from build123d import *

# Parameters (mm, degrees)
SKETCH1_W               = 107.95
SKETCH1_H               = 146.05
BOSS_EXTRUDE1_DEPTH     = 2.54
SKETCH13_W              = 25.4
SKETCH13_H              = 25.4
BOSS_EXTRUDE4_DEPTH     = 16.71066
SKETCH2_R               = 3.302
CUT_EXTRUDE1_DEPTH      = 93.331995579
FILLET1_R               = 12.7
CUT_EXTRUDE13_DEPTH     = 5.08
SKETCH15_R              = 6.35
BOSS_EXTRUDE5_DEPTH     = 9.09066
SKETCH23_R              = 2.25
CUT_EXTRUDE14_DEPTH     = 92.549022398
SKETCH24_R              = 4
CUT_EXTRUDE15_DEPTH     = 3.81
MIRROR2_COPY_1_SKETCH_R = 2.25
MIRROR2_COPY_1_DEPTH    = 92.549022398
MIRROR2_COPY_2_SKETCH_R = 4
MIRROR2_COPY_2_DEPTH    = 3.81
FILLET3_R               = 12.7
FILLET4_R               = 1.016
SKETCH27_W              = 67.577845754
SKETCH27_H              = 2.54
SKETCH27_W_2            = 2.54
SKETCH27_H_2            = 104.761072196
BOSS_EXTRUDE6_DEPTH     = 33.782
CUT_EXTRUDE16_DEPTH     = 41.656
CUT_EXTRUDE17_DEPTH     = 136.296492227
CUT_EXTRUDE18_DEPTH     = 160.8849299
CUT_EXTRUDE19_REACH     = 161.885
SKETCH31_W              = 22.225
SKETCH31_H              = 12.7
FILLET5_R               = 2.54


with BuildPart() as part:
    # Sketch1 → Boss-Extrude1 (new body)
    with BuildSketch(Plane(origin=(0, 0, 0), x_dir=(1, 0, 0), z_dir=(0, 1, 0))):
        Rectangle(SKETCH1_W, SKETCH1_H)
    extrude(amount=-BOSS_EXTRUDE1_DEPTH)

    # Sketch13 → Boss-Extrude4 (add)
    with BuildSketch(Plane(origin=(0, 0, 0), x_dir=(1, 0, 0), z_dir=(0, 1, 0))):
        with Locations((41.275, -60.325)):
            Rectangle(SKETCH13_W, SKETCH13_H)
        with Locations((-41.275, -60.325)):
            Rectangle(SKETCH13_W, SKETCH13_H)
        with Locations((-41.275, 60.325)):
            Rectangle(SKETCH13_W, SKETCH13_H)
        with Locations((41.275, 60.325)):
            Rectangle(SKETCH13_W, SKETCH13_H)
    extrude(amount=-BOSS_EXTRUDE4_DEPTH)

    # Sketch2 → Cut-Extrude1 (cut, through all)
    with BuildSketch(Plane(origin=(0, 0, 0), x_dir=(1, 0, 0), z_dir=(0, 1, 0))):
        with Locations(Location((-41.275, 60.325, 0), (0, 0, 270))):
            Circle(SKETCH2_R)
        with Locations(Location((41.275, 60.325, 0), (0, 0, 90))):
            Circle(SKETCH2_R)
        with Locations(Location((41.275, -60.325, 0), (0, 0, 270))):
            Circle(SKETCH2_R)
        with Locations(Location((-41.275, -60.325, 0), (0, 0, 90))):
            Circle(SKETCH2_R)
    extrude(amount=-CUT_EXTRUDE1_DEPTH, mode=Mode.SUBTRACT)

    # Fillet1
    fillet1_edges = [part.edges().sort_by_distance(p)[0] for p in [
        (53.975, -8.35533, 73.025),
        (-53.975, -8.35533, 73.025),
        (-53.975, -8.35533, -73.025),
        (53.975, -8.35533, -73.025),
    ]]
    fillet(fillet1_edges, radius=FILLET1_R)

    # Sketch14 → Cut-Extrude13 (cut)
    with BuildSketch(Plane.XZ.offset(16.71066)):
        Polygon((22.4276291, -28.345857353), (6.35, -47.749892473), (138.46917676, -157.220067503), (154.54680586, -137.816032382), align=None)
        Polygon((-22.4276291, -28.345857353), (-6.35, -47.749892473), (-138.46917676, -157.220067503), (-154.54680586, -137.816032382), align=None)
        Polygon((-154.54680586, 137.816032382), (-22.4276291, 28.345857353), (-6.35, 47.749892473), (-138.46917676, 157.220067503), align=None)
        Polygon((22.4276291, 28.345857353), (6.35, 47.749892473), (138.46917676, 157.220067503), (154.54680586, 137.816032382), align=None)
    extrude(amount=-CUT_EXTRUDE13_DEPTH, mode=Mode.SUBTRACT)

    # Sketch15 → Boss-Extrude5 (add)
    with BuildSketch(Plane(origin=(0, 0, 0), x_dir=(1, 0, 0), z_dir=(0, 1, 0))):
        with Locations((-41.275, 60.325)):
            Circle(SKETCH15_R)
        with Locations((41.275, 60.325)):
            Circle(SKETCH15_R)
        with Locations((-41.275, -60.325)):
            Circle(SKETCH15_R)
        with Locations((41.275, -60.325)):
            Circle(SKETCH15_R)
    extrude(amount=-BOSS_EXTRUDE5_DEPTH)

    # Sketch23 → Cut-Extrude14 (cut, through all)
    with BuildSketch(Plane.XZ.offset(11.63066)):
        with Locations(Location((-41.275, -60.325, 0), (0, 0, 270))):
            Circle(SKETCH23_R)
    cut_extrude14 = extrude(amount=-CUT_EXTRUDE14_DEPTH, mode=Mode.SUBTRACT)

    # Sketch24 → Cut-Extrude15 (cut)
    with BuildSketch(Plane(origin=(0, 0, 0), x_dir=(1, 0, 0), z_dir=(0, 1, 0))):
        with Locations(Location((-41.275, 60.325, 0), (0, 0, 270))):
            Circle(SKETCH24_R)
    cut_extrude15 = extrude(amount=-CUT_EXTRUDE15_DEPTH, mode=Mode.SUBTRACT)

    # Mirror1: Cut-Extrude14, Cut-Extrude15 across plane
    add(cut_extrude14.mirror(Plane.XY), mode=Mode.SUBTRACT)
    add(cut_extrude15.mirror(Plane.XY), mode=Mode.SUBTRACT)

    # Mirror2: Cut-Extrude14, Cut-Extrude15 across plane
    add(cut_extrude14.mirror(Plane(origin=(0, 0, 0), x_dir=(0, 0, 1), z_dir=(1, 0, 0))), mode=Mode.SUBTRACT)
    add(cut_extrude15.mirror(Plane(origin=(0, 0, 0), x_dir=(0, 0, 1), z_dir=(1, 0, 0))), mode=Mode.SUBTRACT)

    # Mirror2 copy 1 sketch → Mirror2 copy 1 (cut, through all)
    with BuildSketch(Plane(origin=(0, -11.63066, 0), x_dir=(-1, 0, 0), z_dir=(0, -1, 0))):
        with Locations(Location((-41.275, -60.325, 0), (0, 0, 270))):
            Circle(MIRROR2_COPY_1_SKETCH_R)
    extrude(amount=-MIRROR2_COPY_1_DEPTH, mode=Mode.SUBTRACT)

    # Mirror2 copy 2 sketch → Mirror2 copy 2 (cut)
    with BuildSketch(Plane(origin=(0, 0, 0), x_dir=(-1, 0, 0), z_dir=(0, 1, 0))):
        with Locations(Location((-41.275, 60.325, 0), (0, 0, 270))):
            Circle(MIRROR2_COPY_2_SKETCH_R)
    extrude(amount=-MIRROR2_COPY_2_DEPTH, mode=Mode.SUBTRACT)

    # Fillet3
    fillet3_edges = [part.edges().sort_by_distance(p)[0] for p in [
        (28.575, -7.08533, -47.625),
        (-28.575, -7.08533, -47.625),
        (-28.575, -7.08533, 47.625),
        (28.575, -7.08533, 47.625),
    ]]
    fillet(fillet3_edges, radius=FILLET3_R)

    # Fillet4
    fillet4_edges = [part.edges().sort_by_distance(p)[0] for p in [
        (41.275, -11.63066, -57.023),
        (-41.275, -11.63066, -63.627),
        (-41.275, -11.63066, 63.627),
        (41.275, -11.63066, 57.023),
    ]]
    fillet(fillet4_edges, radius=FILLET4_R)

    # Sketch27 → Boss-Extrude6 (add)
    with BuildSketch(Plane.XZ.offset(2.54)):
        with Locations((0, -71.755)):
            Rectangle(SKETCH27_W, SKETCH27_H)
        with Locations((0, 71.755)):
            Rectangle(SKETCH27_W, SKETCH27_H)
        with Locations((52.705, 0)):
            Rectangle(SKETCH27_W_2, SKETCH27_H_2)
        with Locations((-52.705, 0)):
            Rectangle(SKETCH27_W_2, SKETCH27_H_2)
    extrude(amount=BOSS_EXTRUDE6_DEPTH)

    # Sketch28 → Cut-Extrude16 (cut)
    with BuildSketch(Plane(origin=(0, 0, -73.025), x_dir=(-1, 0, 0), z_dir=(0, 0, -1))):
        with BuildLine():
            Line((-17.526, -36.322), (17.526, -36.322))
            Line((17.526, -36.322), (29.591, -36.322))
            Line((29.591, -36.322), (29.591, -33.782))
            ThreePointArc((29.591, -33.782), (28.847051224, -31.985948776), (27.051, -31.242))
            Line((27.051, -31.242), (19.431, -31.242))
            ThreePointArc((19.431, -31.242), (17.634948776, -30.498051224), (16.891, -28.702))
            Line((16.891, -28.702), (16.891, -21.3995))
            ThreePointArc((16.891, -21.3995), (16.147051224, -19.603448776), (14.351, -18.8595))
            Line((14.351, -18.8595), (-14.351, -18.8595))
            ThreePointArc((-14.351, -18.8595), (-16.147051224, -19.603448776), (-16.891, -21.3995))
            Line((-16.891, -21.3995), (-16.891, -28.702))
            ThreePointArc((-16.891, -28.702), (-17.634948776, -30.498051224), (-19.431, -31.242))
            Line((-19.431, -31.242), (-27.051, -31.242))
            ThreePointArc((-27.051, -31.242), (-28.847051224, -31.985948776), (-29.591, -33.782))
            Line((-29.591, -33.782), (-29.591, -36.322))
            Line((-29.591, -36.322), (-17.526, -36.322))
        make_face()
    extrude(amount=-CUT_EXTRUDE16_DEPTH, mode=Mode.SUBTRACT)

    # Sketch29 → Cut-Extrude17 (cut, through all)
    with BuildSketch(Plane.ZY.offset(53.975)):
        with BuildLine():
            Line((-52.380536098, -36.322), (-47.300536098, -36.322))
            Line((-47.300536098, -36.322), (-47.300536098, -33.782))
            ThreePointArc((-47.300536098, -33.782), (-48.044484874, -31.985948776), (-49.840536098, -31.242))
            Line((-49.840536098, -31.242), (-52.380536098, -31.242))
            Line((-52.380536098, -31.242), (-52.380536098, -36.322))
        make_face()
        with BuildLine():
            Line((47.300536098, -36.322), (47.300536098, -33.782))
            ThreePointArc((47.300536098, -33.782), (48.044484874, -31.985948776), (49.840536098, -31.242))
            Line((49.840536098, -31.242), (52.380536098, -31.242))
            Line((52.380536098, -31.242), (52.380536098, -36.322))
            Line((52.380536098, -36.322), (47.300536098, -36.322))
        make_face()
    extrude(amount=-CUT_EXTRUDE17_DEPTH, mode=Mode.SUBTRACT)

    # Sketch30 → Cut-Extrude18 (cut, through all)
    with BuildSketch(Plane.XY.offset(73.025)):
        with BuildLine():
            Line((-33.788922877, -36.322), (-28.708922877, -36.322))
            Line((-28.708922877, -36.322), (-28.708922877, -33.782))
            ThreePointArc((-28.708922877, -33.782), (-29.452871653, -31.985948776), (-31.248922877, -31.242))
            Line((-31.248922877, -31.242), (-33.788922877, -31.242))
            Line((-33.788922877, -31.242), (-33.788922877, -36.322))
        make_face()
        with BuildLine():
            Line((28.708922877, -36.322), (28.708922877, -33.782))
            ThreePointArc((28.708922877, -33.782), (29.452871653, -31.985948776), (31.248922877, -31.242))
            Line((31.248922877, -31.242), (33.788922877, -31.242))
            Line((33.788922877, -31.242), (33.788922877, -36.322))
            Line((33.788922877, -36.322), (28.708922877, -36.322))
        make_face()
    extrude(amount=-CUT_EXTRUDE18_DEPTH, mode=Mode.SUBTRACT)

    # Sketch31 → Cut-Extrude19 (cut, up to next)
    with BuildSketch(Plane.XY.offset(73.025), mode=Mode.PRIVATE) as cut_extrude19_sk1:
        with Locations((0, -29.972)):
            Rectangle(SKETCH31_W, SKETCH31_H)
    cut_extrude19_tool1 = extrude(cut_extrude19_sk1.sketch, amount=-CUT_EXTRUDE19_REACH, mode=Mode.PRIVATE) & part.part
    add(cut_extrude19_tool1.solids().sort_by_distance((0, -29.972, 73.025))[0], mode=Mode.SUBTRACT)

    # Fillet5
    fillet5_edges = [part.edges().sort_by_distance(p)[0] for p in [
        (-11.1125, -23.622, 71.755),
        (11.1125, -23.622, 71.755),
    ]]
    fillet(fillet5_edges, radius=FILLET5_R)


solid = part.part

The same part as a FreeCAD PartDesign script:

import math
import FreeCAD as App
import Part
import Sketcher
from FreeCAD import Vector
Q = App.Units.Quantity


def edges_at(feature, points):
    """Names of the edges that pass closest to the given points."""
    edges = feature.Shape.Edges
    near = lambda p: min(range(len(edges)), key=lambda i: edges[i].distToShape(Part.Vertex(*p))[0])
    return sorted({f"Edge{near(p) + 1}" for p in points})


def add_polygon(sketch, points):
    """Adds a closed chain of lines whose ends are joined by coincident constraints."""
    first, n = sketch.GeometryCount, len(points)
    for a, b in zip(points, points[1:] + points[:1]):
        sketch.addGeometry(Part.LineSegment(App.Vector(*a, 0), App.Vector(*b, 0)), False)
    for i in range(n):
        sketch.addConstraint(Sketcher.Constraint("Coincident", first + i, 2, first + (i + 1) % n, 1))

doc = App.newDocument("Part")
body = doc.addObject("PartDesign::Body", "Body")

sketch1 = body.newObject("Sketcher::SketchObject", "Sketch")
sketch1.AttachmentSupport = (doc.getObject("XZ_Plane"), [""])
sketch1.MapMode = "FlatFace"
add_polygon(sketch1, [(-54, -73), (-54, 73), (54, 73), (54, -73)])
sketch1.addConstraint([
    Sketcher.Constraint("Vertical", 0),
    Sketcher.Constraint("Horizontal", 1),
    Sketcher.Constraint("Vertical", 2),
    Sketcher.Constraint("Horizontal", 3),
    Sketcher.Constraint("Symmetric", 0, 2, 2, 2, -1, 1),
    Sketcher.Constraint("DistanceX", 1, 1, 1, 2, Q("4.25 in")),
    Sketcher.Constraint("DistanceY", 0, 1, 0, 2, Q("5.75 in")),
])
pad1 = body.newObject("PartDesign::Pad", "Pad")
pad1.Profile = sketch1
pad1.Length = Q("0.1 in")

sketch2 = body.newObject("Sketcher::SketchObject", "Sketch001")
sketch2.AttachmentSupport = (doc.getObject("XZ_Plane"), [""])
sketch2.MapMode = "FlatFace"
add_polygon(sketch2, [(29, 48), (29, 73), (54, 73), (54, 48)])
add_polygon(sketch2, [(-54, 48), (-54, 73), (-29, 73), (-29, 48)])
add_polygon(sketch2, [(-54, -73), (-54, -48), (-29, -48), (-29, -73)])
add_polygon(sketch2, [(29, -73), (29, -48), (54, -48), (54, -73)])
sketch2.addConstraint([
    Sketcher.Constraint("Vertical", 0),
    Sketcher.Constraint("Horizontal", 1),
    Sketcher.Constraint("Vertical", 2),
    Sketcher.Constraint("Horizontal", 3),
    Sketcher.Constraint("Vertical", 4),
    Sketcher.Constraint("Horizontal", 5),
    Sketcher.Constraint("Vertical", 6),
    Sketcher.Constraint("Horizontal", 7),
    Sketcher.Constraint("Vertical", 8),
    Sketcher.Constraint("Horizontal", 9),
    Sketcher.Constraint("Vertical", 10),
    Sketcher.Constraint("Horizontal", 11),
    Sketcher.Constraint("Vertical", 12),
    Sketcher.Constraint("Horizontal", 13),
    Sketcher.Constraint("Vertical", 14),
    Sketcher.Constraint("Horizontal", 15),
    Sketcher.Constraint("Symmetric", 2, 2, 8, 2, -1, 1),
    Sketcher.Constraint("Symmetric", 0, 2, 10, 2, -1, 1),
    Sketcher.Constraint("Symmetric", 6, 2, 12, 2, -1, 1),
    Sketcher.Constraint("Symmetric", 4, 2, 14, 2, -1, 1),
    Sketcher.Constraint("Symmetric", 1, 2, 4, 2, -2),
    Sketcher.Constraint("Symmetric", 3, 2, 6, 2, -2),
    Sketcher.Constraint("Equal", 15, 0),
    Sketcher.Constraint("DistanceX", 1, 1, 1, 2, Q("1 in")),
    Sketcher.Constraint("DistanceX", 4, 2, 0, 2, Q("3.25 in")),
    Sketcher.Constraint("DistanceY", 8, 2, 7, 2, Q("3.75 in")),
])
pad2 = body.newObject("PartDesign::Pad", "Pad001")
pad2.Profile = sketch2
pad2.Length = Q("0.6579 in")

sketch3 = body.newObject("Sketcher::SketchObject", "Sketch002")
sketch3.AttachmentSupport = (doc.getObject("XZ_Plane"), [""])
sketch3.MapMode = "FlatFace"
sketch3.addGeometry([
    Part.Circle(Vector(-41.3, -60.3, 0), Vector(0, 0, 1), 3.3),
    Part.Circle(Vector(41.3, -60.3, 0), Vector(0, 0, 1), 3.3),
    Part.Circle(Vector(41.3, 60.3, 0), Vector(0, 0, 1), 3.3),
    Part.Circle(Vector(-41.3, 60.3, 0), Vector(0, 0, 1), 3.3),
], False)
sketch3.addConstraint([
    Sketcher.Constraint("Equal", 0, 1),
    Sketcher.Constraint("Equal", 1, 2),
    Sketcher.Constraint("Equal", 2, 3),
    Sketcher.Constraint("Symmetric", 0, 3, 2, 3, -1, 1),
    Sketcher.Constraint("Symmetric", 1, 3, 3, 3, -1, 1),
    Sketcher.Constraint("Symmetric", 0, 3, 1, 3, -2),
    Sketcher.Constraint("Diameter", 0, Q("0.26 in")),
    Sketcher.Constraint("DistanceX", 0, 3, 1, 3, Q("3.25 in")),
    Sketcher.Constraint("DistanceY", 1, 3, 2, 3, Q("4.75 in")),
])
pocket1 = body.newObject("PartDesign::Pocket", "Pocket")
pocket1.Profile = sketch3
pocket1.Type = "ThroughAll"
pocket1.Reversed = True
doc.recompute()

fillet = body.newObject("PartDesign::Fillet", "Fillet")
fillet.Base = (pocket1, edges_at(pocket1, [
    (53.975, -8.355, 73.025),
    (-53.975, -8.355, 73.025),
    (-53.975, -8.355, -73.025),
    (53.975, -8.355, -73.025),
]))
fillet.Radius = Q("0.5 in")

sketch4 = body.newObject("Sketcher::SketchObject", "Sketch003")
sketch4.AttachmentSupport = (doc.getObject("XZ_Plane"), [""])
sketch4.MapMode = "FlatFace"
sketch4.AttachmentOffset = App.Placement(Vector(0, 0, 0.6579 * 25.4), App.Rotation())
add_polygon(sketch4, [(22, -28), (6, -48), (138, -157), (155, -138)])
add_polygon(sketch4, [(-6, -48), (-22, -28), (-155, -138), (-138, -157)])
add_polygon(sketch4, [(-155, 138), (-22, 28), (-6, 48), (-138, 157)])
add_polygon(sketch4, [(6, 48), (22, 28), (155, 138), (138, 157)])
sketch4.addConstraint([
    Sketcher.Constraint("Symmetric", 3, 2, 8, 2, -1, 1),
    Sketcher.Constraint("Symmetric", 0, 2, 9, 2, -1, 1),
    Sketcher.Constraint("Symmetric", 1, 2, 10, 2, -1, 1),
    Sketcher.Constraint("Symmetric", 2, 2, 11, 2, -1, 1),
    Sketcher.Constraint("Symmetric", 4, 2, 12, 2, -1, 1),
    Sketcher.Constraint("Symmetric", 5, 2, 13, 2, -1, 1),
    Sketcher.Constraint("Symmetric", 6, 2, 14, 2, -1, 1),
    Sketcher.Constraint("Symmetric", 7, 2, 15, 2, -1, 1),
    Sketcher.Constraint("Symmetric", 3, 2, 4, 2, -2),
    Sketcher.Constraint("Symmetric", 2, 2, 5, 2, -2),
    Sketcher.Constraint("Symmetric", 1, 2, 6, 2, -2),
    Sketcher.Constraint("Symmetric", 0, 2, 7, 2, -2),
    Sketcher.Constraint("Perpendicular", 0, 1),
    Sketcher.Constraint("Perpendicular", 1, 2),
    Sketcher.Constraint("Perpendicular", 2, 3),
    Sketcher.Constraint("DistanceX", 7, 2, 0, 2, Q("0.5 in")),
    Sketcher.Constraint("Distance", 0, Q("0.9921 in")),
    Sketcher.Constraint("DistanceX", -1, 1, 3, 2, 22.427629),
    Sketcher.Constraint("DistanceY", 2, 2, 0, 2, 90.06614),
    Sketcher.Constraint("DistanceY", 7, 2, 8, 2, 76.09575),
])
pocket2 = body.newObject("PartDesign::Pocket", "Pocket001")
pocket2.Profile = sketch4
pocket2.Length = Q("0.2 in")

sketch5 = body.newObject("Sketcher::SketchObject", "Sketch004")
sketch5.AttachmentSupport = (doc.getObject("XZ_Plane"), [""])
sketch5.MapMode = "FlatFace"
sketch5.addGeometry([
    Part.Circle(Vector(-41, -60, 0), Vector(0, 0, 1), 6),
    Part.Circle(Vector(41, -60, 0), Vector(0, 0, 1), 6),
    Part.Circle(Vector(-41, 60, 0), Vector(0, 0, 1), 6),
    Part.Circle(Vector(41, 60, 0), Vector(0, 0, 1), 6),
], False)
sketch5.addConstraint([
    Sketcher.Constraint("Equal", 0, 1),
    Sketcher.Constraint("Equal", 1, 2),
    Sketcher.Constraint("Equal", 2, 3),
    Sketcher.Constraint("Symmetric", 1, 3, 2, 3, -1, 1),
    Sketcher.Constraint("Symmetric", 0, 3, 3, 3, -1, 1),
    Sketcher.Constraint("Symmetric", 0, 3, 1, 3, -2),
    Sketcher.Constraint("Diameter", 0, Q("0.5 in")),
    Sketcher.Constraint("DistanceX", 0, 3, 1, 3, Q("3.25 in")),
    Sketcher.Constraint("DistanceY", 0, 3, 2, 3, Q("4.75 in")),
])
pad3 = body.newObject("PartDesign::Pad", "Pad002")
pad3.Profile = sketch5
pad3.Length = Q("0.3579 in")

sketch6 = body.newObject("Sketcher::SketchObject", "Sketch005")
sketch6.AttachmentSupport = (doc.getObject("XZ_Plane"), [""])
sketch6.MapMode = "FlatFace"
sketch6.AttachmentOffset = App.Placement(Vector(0, 0, 0.4579 * 25.4), App.Rotation())
sketch6.addGeometry(Part.Circle(Vector(-41.3, -60.3, 0), Vector(0, 0, 1), 2.2), False)
sketch6.addConstraint([
    Sketcher.Constraint("Diameter", 0, 4.5),
    Sketcher.Constraint("DistanceX", 0, 3, -1, 1, Q("1.625 in")),
    Sketcher.Constraint("DistanceY", 0, 3, -1, 1, Q("2.375 in")),
])
pocket3 = body.newObject("PartDesign::Pocket", "Pocket002")
pocket3.Profile = sketch6
pocket3.Type = "ThroughAll"

sketch7 = body.newObject("Sketcher::SketchObject", "Sketch006")
sketch7.AttachmentSupport = (doc.getObject("XZ_Plane"), [""])
sketch7.MapMode = "FlatFace"
sketch7.addGeometry(Part.Circle(Vector(-41.3, -60.3, 0), Vector(0, 0, 1), 4), False)
sketch7.addConstraint([
    Sketcher.Constraint("Diameter", 0, 8.0),
    Sketcher.Constraint("DistanceX", 0, 3, -1, 1, Q("1.625 in")),
    Sketcher.Constraint("DistanceY", 0, 3, -1, 1, Q("2.375 in")),
])
pocket4 = body.newObject("PartDesign::Pocket", "Pocket003")
pocket4.Profile = sketch7
pocket4.Length = Q("0.15 in")
pocket4.Reversed = True
doc.recompute()

mirrored = body.newObject("PartDesign::Mirrored", "Mirrored")
mirrored.Originals = [pocket3, pocket4]
mirrored.MirrorPlane = (doc.getObject("XY_Plane"), [""])
body.Tip = mirrored
doc.recompute()

mirrored2 = body.newObject("PartDesign::Mirrored", "Mirrored001")
mirrored2.Originals = [pocket3, pocket4]
mirrored2.MirrorPlane = (doc.getObject("YZ_Plane"), [""])
body.Tip = mirrored2

sketch8 = body.newObject("Sketcher::SketchObject", "Sketch007")
sketch8.AttachmentSupport = (doc.getObject("XZ_Plane"), [""])
sketch8.MapMode = "FlatFace"
sketch8.AttachmentOffset = App.Placement(Vector(0, 0, 0.4579 * 25.4), App.Rotation())
sketch8.addGeometry(Part.Circle(Vector(41.3, 60.3, 0), Vector(0, 0, 1), 2.2), False)
sketch8.addConstraint([
    Sketcher.Constraint("Diameter", 0, 4.5),
    Sketcher.Constraint("DistanceX", -1, 1, 0, 3, Q("1.625 in")),
    Sketcher.Constraint("DistanceY", -1, 1, 0, 3, Q("2.375 in")),
])
pocket5 = body.newObject("PartDesign::Pocket", "Pocket004")
pocket5.Profile = sketch8
pocket5.Type = "ThroughAll"

sketch9 = body.newObject("Sketcher::SketchObject", "Sketch008")
sketch9.AttachmentSupport = (doc.getObject("XZ_Plane"), [""])
sketch9.MapMode = "FlatFace"
sketch9.addGeometry(Part.Circle(Vector(41.3, 60.3, 0), Vector(0, 0, 1), 4), False)
sketch9.addConstraint([
    Sketcher.Constraint("Diameter", 0, 8.0),
    Sketcher.Constraint("DistanceX", -1, 1, 0, 3, Q("1.625 in")),
    Sketcher.Constraint("DistanceY", -1, 1, 0, 3, Q("2.375 in")),
])
pocket6 = body.newObject("PartDesign::Pocket", "Pocket005")
pocket6.Profile = sketch9
pocket6.Length = Q("0.15 in")
pocket6.Reversed = True
doc.recompute()

fillet2 = body.newObject("PartDesign::Fillet", "Fillet001")
fillet2.Base = (pocket6, edges_at(pocket6, [
    (28.575, -7.085, -47.625),
    (-28.575, -7.085, -47.625),
    (-28.575, -7.085, 47.625),
    (28.575, -7.085, 47.625),
]))
fillet2.Radius = Q("0.5 in")
doc.recompute()

fillet3 = body.newObject("PartDesign::Fillet", "Fillet002")
fillet3.Base = (fillet2, edges_at(fillet2, [
    (41.275, -11.631, -57.023),
    (-41.275, -11.631, -63.627),
    (-41.275, -11.631, 63.627),
    (41.275, -11.631, 57.023),
]))
fillet3.Radius = Q("0.04 in")

sketch10 = body.newObject("Sketcher::SketchObject", "Sketch009")
sketch10.AttachmentSupport = (doc.getObject("XZ_Plane"), [""])
sketch10.MapMode = "FlatFace"
sketch10.AttachmentOffset = App.Placement(Vector(0, 0, 0.1 * 25.4), App.Rotation())
add_polygon(sketch10, [(-33.8, -70.5), (-33.8, -73), (33.8, -73), (33.8, -70.5)])
add_polygon(sketch10, [(-33.8, 73), (-33.8, 70.5), (33.8, 70.5), (33.8, 73)])
add_polygon(sketch10, [(51.4, 52.4), (51.4, -52.4), (54, -52.4), (54, 52.4)])
add_polygon(sketch10, [(-54, 52.4), (-54, -52.4), (-51.4, -52.4), (-51.4, 52.4)])
sketch10.addConstraint([
    Sketcher.Constraint("Vertical", 0),
    Sketcher.Constraint("Horizontal", 1),
    Sketcher.Constraint("Vertical", 2),
    Sketcher.Constraint("Horizontal", 3),
    Sketcher.Constraint("Vertical", 4),
    Sketcher.Constraint("Horizontal", 5),
    Sketcher.Constraint("Vertical", 6),
    Sketcher.Constraint("Horizontal", 7),
    Sketcher.Constraint("Vertical", 8),
    Sketcher.Constraint("Horizontal", 9),
    Sketcher.Constraint("Vertical", 10),
    Sketcher.Constraint("Horizontal", 11),
    Sketcher.Constraint("Vertical", 12),
    Sketcher.Constraint("Horizontal", 13),
    Sketcher.Constraint("Vertical", 14),
    Sketcher.Constraint("Horizontal", 15),
    Sketcher.Constraint("Symmetric", 2, 2, 4, 2, -1, 1),
    Sketcher.Constraint("Symmetric", 0, 2, 6, 2, -1, 1),
    Sketcher.Constraint("Symmetric", 10, 2, 12, 2, -1, 1),
    Sketcher.Constraint("Symmetric", 8, 2, 14, 2, -1, 1),
    Sketcher.Constraint("Horizontal", 9, 2, 12, 2),
    Sketcher.Constraint("Vertical", 3, 2, 4, 2),
    Sketcher.Constraint("Equal", 15, 0),
    Sketcher.Constraint("DistanceX", 9, 1, 9, 2, Q("0.1 in")),
    Sketcher.Constraint("DistanceY", 3, 2, 4, 2, Q("5.55 in")),
    Sketcher.Constraint("DistanceX", 12, 2, 8, 2, Q("4.15 in")),
    Sketcher.Constraint("DistanceX", 1, 1, 1, 2, 67.577846),
    Sketcher.Constraint("DistanceY", 8, 2, 8, 1, 104.761072),
])
pad4 = body.newObject("PartDesign::Pad", "Pad003")
pad4.Profile = sketch10
pad4.Length = Q("1.33 in")

sketch11 = body.newObject("Sketcher::SketchObject", "Sketch010")
sketch11.AttachmentSupport = (doc.getObject("XY_Plane"), [""])
sketch11.MapMode = "FlatFace"
sketch11.AttachmentOffset = App.Placement(Vector(0, 0, -2.875 * 25.4), App.Rotation())
sketch11.addGeometry([
    Part.LineSegment(Vector(-29.6, -36.3, 0), Vector(-29.6, -33.8, 0)),
    Part.ArcOfCircle(Part.Circle(Vector(-27.1, -33.8, 0), Vector(0, 0, 1), 2.5), math.radians(90), math.radians(180)),
    Part.LineSegment(Vector(-27.1, -31.2, 0), Vector(-19.4, -31.2, 0)),
    Part.ArcOfCircle(Part.Circle(Vector(-19.4, -28.7, 0), Vector(0, 0, 1), 2.5), math.radians(-90), math.radians(0)),
    Part.LineSegment(Vector(-16.9, -28.7, 0), Vector(-16.9, -21.4, 0)),
    Part.ArcOfCircle(Part.Circle(Vector(-14.4, -21.4, 0), Vector(0, 0, 1), 2.5), math.radians(90), math.radians(180)),
    Part.LineSegment(Vector(-14.4, -18.9, 0), Vector(14.4, -18.9, 0)),
    Part.ArcOfCircle(Part.Circle(Vector(14.4, -21.4, 0), Vector(0, 0, 1), 2.5), math.radians(0), math.radians(90)),
    Part.LineSegment(Vector(16.9, -21.4, 0), Vector(16.9, -28.7, 0)),
    Part.ArcOfCircle(Part.Circle(Vector(19.4, -28.7, 0), Vector(0, 0, 1), 2.5), math.radians(-180), math.radians(-90)),
    Part.LineSegment(Vector(19.4, -31.2, 0), Vector(27.1, -31.2, 0)),
    Part.ArcOfCircle(Part.Circle(Vector(27.1, -33.8, 0), Vector(0, 0, 1), 2.5), math.radians(0), math.radians(90)),
    Part.LineSegment(Vector(29.6, -33.8, 0), Vector(29.6, -36.3, 0)),
    Part.LineSegment(Vector(29.6, -36.3, 0), Vector(-29.6, -36.3, 0)),
], False)
sketch11.addConstraint([
    Sketcher.Constraint("Tangent", 0, 2, 1, 2),
    Sketcher.Constraint("Tangent", 1, 1, 2, 1),
    Sketcher.Constraint("Tangent", 2, 2, 3, 1),
    Sketcher.Constraint("Tangent", 3, 2, 4, 1),
    Sketcher.Constraint("Tangent", 4, 2, 5, 2),
    Sketcher.Constraint("Tangent", 5, 1, 6, 1),
    Sketcher.Constraint("Tangent", 6, 2, 7, 2),
    Sketcher.Constraint("Tangent", 7, 1, 8, 1),
    Sketcher.Constraint("Tangent", 8, 2, 9, 1),
    Sketcher.Constraint("Tangent", 9, 2, 10, 1),
    Sketcher.Constraint("Tangent", 10, 2, 11, 2),
    Sketcher.Constraint("Tangent", 11, 1, 12, 1),
    Sketcher.Constraint("Coincident", 12, 2, 13, 1),
    Sketcher.Constraint("Coincident", 13, 2, 0, 1),
    Sketcher.Constraint("Vertical", 0),
    Sketcher.Constraint("Horizontal", 2),
    Sketcher.Constraint("Vertical", 4),
    Sketcher.Constraint("Horizontal", 6),
    Sketcher.Constraint("Vertical", 8),
    Sketcher.Constraint("Horizontal", 10),
    Sketcher.Constraint("Vertical", 12),
    Sketcher.Constraint("Horizontal", 13),
    Sketcher.Constraint("Equal", 1, 3),
    Sketcher.Constraint("Equal", 3, 5),
    Sketcher.Constraint("Equal", 5, 7),
    Sketcher.Constraint("Equal", 7, 9),
    Sketcher.Constraint("Equal", 9, 11),
    Sketcher.Constraint("Symmetric", 3, 3, 9, 3, -2),
    Sketcher.Constraint("Equal", 2, 10),
    Sketcher.Constraint("Radius", 1, Q("0.1 in")),
    Sketcher.Constraint("DistanceX", 2, 1, 2, 2, Q("0.3 in")),
    Sketcher.Constraint("DistanceY", 0, 1, 0, 2, Q("0.1 in")),
    Sketcher.Constraint("DistanceX", 6, 1, 6, 2, Q("1.13 in")),
    Sketcher.Constraint("DistanceY", 1, 3, -1, 1, Q("1.33 in")),
    Sketcher.Constraint("DistanceY", 4, 1, 4, 2, Q("0.2875 in")),
])
pocket7 = body.newObject("PartDesign::Pocket", "Pocket006")
pocket7.Profile = sketch11
pocket7.Length = Q("1.64 in")
pocket7.Reversed = True

sketch12 = body.newObject("Sketcher::SketchObject", "Sketch011")
sketch12.AttachmentSupport = (doc.getObject("YZ_Plane"), [""])
sketch12.MapMode = "FlatFace"
sketch12.AttachmentOffset = App.Placement(Vector(0, 0, -2.125 * 25.4), App.Rotation())
sketch12.addGeometry([
    Part.LineSegment(Vector(-36.3, -52.4, 0), Vector(-36.3, -47.3, 0)),
    Part.LineSegment(Vector(-36.3, -47.3, 0), Vector(-33.8, -47.3, 0)),
    Part.ArcOfCircle(Part.Circle(Vector(-33.8, -49.8, 0), Vector(0, 0, 1), 2.5), math.radians(0), math.radians(90)),
    Part.LineSegment(Vector(-31.2, -49.8, 0), Vector(-31.2, -52.4, 0)),
    Part.LineSegment(Vector(-31.2, -52.4, 0), Vector(-36.3, -52.4, 0)),
    Part.LineSegment(Vector(-33.8, 47.3, 0), Vector(-36.3, 47.3, 0)),
    Part.LineSegment(Vector(-36.3, 47.3, 0), Vector(-36.3, 52.4, 0)),
    Part.LineSegment(Vector(-36.3, 52.4, 0), Vector(-31.2, 52.4, 0)),
    Part.LineSegment(Vector(-31.2, 52.4, 0), Vector(-31.2, 49.8, 0)),
    Part.ArcOfCircle(Part.Circle(Vector(-33.8, 49.8, 0), Vector(0, 0, 1), 2.5), math.radians(-90), math.radians(0)),
], False)
sketch12.addConstraint([
    Sketcher.Constraint("Coincident", 0, 2, 1, 1),
    Sketcher.Constraint("Tangent", 1, 2, 2, 2),
    Sketcher.Constraint("Tangent", 2, 1, 3, 1),
    Sketcher.Constraint("Coincident", 3, 2, 4, 1),
    Sketcher.Constraint("Coincident", 4, 2, 0, 1),
    Sketcher.Constraint("Coincident", 5, 2, 6, 1),
    Sketcher.Constraint("Coincident", 6, 2, 7, 1),
    Sketcher.Constraint("Coincident", 7, 2, 8, 1),
    Sketcher.Constraint("Tangent", 8, 2, 9, 2),
    Sketcher.Constraint("Tangent", 9, 1, 5, 1),
    Sketcher.Constraint("Vertical", 0),
    Sketcher.Constraint("Horizontal", 1),
    Sketcher.Constraint("Vertical", 3),
    Sketcher.Constraint("Horizontal", 4),
    Sketcher.Constraint("Horizontal", 5),
    Sketcher.Constraint("Vertical", 6),
    Sketcher.Constraint("Horizontal", 7),
    Sketcher.Constraint("Vertical", 8),
    Sketcher.Constraint("Equal", 2, 9),
    Sketcher.Constraint("Symmetric", 2, 3, 9, 3, -1),
    Sketcher.Constraint("Symmetric", 4, 2, 6, 2, -1),
    Sketcher.Constraint("Equal", 7, 0),
    Sketcher.Constraint("Radius", 2, Q("0.1 in")),
    Sketcher.Constraint("DistanceX", 1, 1, 1, 2, Q("0.1 in")),
    Sketcher.Constraint("DistanceX", 2, 3, -1, 1, Q("1.33 in")),
    Sketcher.Constraint("DistanceY", 2, 3, -1, 1, 49.840536),
])
pocket8 = body.newObject("PartDesign::Pocket", "Pocket007")
pocket8.Profile = sketch12
pocket8.Type = "ThroughAll"
pocket8.Reversed = True

sketch13 = body.newObject("Sketcher::SketchObject", "Sketch012")
sketch13.AttachmentSupport = (doc.getObject("XY_Plane"), [""])
sketch13.MapMode = "FlatFace"
sketch13.AttachmentOffset = App.Placement(Vector(0, 0, 2.875 * 25.4), App.Rotation())
sketch13.addGeometry([
    Part.LineSegment(Vector(-33.8, -36.3, 0), Vector(-28.7, -36.3, 0)),
    Part.LineSegment(Vector(-28.7, -36.3, 0), Vector(-28.7, -33.8, 0)),
    Part.ArcOfCircle(Part.Circle(Vector(-31.2, -33.8, 0), Vector(0, 0, 1), 2.5), math.radians(0), math.radians(90)),
    Part.LineSegment(Vector(-31.2, -31.2, 0), Vector(-33.8, -31.2, 0)),
    Part.LineSegment(Vector(-33.8, -31.2, 0), Vector(-33.8, -36.3, 0)),
    Part.LineSegment(Vector(28.7, -33.8, 0), Vector(28.7, -36.3, 0)),
    Part.LineSegment(Vector(28.7, -36.3, 0), Vector(33.8, -36.3, 0)),
    Part.LineSegment(Vector(33.8, -36.3, 0), Vector(33.8, -31.2, 0)),
    Part.LineSegment(Vector(33.8, -31.2, 0), Vector(31.2, -31.2, 0)),
    Part.ArcOfCircle(Part.Circle(Vector(31.2, -33.8, 0), Vector(0, 0, 1), 2.5), math.radians(90), math.radians(180)),
], False)
sketch13.addConstraint([
    Sketcher.Constraint("Coincident", 0, 2, 1, 1),
    Sketcher.Constraint("Tangent", 1, 2, 2, 1),
    Sketcher.Constraint("Tangent", 2, 2, 3, 1),
    Sketcher.Constraint("Coincident", 3, 2, 4, 1),
    Sketcher.Constraint("Coincident", 4, 2, 0, 1),
    Sketcher.Constraint("Coincident", 5, 2, 6, 1),
    Sketcher.Constraint("Coincident", 6, 2, 7, 1),
    Sketcher.Constraint("Coincident", 7, 2, 8, 1),
    Sketcher.Constraint("Tangent", 8, 2, 9, 1),
    Sketcher.Constraint("Tangent", 9, 2, 5, 1),
    Sketcher.Constraint("Horizontal", 0),
    Sketcher.Constraint("Vertical", 1),
    Sketcher.Constraint("Horizontal", 3),
    Sketcher.Constraint("Vertical", 4),
    Sketcher.Constraint("Vertical", 5),
    Sketcher.Constraint("Horizontal", 6),
    Sketcher.Constraint("Vertical", 7),
    Sketcher.Constraint("Horizontal", 8),
    Sketcher.Constraint("Equal", 2, 9),
    Sketcher.Constraint("Symmetric", 2, 3, 9, 3, -2),
    Sketcher.Constraint("Symmetric", 4, 2, 6, 2, -2),
    Sketcher.Constraint("Equal", 8, 1),
    Sketcher.Constraint("Radius", 2, Q("0.1 in")),
    Sketcher.Constraint("DistanceX", 0, 1, 0, 2, Q("0.2 in")),
    Sketcher.Constraint("DistanceY", 2, 3, -1, 1, Q("1.33 in")),
    Sketcher.Constraint("DistanceX", 2, 3, -1, 1, 31.248923),
])
pocket9 = body.newObject("PartDesign::Pocket", "Pocket008")
pocket9.Profile = sketch13
pocket9.Type = "ThroughAll"

sketch14 = body.newObject("Sketcher::SketchObject", "Sketch013")
sketch14.AttachmentSupport = (doc.getObject("XY_Plane"), [""])
sketch14.MapMode = "FlatFace"
sketch14.AttachmentOffset = App.Placement(Vector(0, 0, 2.875 * 25.4), App.Rotation())
add_polygon(sketch14, [(-11, -24), (-11, -36), (11, -36), (11, -24)])
sketch14.addConstraint([
    Sketcher.Constraint("Vertical", 0),
    Sketcher.Constraint("Horizontal", 1),
    Sketcher.Constraint("Vertical", 2),
    Sketcher.Constraint("Horizontal", 3),
    Sketcher.Constraint("DistanceY", 0, 2, 0, 1, Q("0.5 in")),
    Sketcher.Constraint("DistanceX", 1, 1, 1, 2, Q("0.875 in")),
    Sketcher.Constraint("DistanceY", 0, 2, -1, 1, Q("1.43 in")),
    Sketcher.Constraint("DistanceX", 0, 2, -1, 1, Q("0.4375 in")),
])
pocket10 = body.newObject("PartDesign::Pocket", "Pocket009")
pocket10.Profile = sketch14
pocket10.Type = "UpToFirst"
doc.recompute()

fillet4 = body.newObject("PartDesign::Fillet", "Fillet003")
fillet4.Base = (pocket10, edges_at(pocket10, [(-11.113, -23.622, 71.755), (11.113, -23.622, 71.755)]))
fillet4.Radius = Q("0.1 in")

doc.recompute()
